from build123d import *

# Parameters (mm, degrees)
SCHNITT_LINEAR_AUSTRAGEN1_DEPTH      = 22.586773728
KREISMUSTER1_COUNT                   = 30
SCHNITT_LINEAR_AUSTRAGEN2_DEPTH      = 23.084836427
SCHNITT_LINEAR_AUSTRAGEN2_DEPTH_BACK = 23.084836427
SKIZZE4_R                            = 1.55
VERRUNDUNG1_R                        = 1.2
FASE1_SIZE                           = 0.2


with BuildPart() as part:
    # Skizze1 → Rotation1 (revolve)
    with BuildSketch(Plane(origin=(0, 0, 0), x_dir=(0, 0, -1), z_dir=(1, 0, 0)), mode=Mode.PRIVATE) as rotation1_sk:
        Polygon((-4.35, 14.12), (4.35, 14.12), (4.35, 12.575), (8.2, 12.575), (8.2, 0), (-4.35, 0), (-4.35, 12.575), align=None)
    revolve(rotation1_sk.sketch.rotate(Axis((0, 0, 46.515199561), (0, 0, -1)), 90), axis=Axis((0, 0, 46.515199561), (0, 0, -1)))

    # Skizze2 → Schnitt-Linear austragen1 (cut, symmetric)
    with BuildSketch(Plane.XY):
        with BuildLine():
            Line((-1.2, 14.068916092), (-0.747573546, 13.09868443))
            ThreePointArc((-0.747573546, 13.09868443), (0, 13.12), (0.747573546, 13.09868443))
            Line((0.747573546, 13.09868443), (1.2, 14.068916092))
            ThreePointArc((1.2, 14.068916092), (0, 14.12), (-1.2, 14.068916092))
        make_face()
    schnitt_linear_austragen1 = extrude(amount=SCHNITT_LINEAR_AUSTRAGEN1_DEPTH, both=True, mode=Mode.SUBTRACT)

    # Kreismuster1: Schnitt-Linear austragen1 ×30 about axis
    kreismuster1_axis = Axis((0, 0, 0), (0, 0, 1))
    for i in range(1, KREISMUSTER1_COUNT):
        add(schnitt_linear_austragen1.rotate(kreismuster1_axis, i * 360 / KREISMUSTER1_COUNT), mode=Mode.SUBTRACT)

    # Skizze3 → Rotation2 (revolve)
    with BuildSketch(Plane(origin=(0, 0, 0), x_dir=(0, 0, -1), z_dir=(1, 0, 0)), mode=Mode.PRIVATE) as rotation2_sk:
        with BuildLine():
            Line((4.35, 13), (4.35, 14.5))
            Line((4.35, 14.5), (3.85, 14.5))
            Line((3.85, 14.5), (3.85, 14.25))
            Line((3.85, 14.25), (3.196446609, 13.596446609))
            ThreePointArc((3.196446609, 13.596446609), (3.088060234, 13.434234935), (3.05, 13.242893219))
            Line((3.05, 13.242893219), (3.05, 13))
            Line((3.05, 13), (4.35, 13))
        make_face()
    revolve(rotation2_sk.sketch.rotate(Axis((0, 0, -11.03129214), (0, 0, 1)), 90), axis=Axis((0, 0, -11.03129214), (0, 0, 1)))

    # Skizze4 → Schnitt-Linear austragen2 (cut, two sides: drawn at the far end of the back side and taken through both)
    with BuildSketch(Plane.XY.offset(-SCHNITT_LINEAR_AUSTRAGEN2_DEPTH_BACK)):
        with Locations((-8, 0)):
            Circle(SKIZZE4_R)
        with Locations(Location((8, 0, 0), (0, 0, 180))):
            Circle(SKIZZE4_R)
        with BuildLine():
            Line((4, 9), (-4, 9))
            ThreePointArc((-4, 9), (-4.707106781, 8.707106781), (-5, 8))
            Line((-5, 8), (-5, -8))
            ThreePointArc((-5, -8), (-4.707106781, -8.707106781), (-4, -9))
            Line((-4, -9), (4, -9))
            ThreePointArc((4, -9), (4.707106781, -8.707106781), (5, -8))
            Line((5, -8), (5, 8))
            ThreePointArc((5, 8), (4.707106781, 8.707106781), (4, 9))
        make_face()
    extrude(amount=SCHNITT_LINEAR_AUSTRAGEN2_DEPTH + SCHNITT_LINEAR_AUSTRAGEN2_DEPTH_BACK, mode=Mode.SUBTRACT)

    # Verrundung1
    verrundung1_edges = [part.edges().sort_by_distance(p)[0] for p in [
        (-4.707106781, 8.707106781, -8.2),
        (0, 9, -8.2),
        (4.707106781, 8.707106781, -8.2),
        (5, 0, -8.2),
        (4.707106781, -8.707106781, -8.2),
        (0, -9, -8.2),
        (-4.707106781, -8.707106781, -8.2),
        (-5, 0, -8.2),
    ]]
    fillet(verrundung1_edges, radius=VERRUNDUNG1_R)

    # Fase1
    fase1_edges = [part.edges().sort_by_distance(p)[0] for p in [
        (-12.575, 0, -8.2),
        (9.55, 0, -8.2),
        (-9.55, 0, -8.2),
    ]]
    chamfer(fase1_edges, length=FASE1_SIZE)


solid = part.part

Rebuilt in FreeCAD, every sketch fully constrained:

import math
import FreeCAD as App
import Part
import Sketcher
from FreeCAD import Vector
Q = App.Units.Quantity


def edges_at(feature, points):
    """Names of the edges that pass closest to the given points."""
    edges = feature.Shape.Edges
    near = lambda p: min(range(len(edges)), key=lambda i: edges[i].distToShape(Part.Vertex(*p))[0])
    return sorted({f"Edge{near(p) + 1}" for p in points})


def add_polygon(sketch, points):
    """Adds a closed chain of lines whose ends are joined by coincident constraints."""
    first, n = sketch.GeometryCount, len(points)
    for a, b in zip(points, points[1:] + points[:1]):
        sketch.addGeometry(Part.LineSegment(App.Vector(*a, 0), App.Vector(*b, 0)), False)
    for i in range(n):
        sketch.addConstraint(Sketcher.Constraint("Coincident", first + i, 2, first + (i + 1) % n, 1))

doc = App.newDocument("Part")
body = doc.addObject("PartDesign::Body", "Body")

# Sketch on YZ plane
sketch1 = body.newObject("Sketcher::SketchObject", "Sketch")
sketch1.AttachmentSupport = (doc.getObject("YZ_Plane"), [""])
sketch1.MapMode = "FlatFace"
add_polygon(sketch1, [(14.1, -4.3), (14.1, 4.3), (0, 4.3), (0, -8.2), (12.6, -8.2), (12.6, -4.3)])  # lines 0-5
sketch1.addConstraint(Sketcher.Constraint("Vertical", 0))
sketch1.addConstraint(Sketcher.Constraint("Horizontal", 1))
sketch1.addConstraint(Sketcher.Constraint("Vertical", 2))
sketch1.addConstraint(Sketcher.Constraint("Horizontal", 3))
sketch1.addConstraint(Sketcher.Constraint("Vertical", 4))
sketch1.addConstraint(Sketcher.Constraint("Horizontal", 5))
sketch1.addConstraint(Sketcher.Constraint("PointOnObject", 1, 2, -2))
sketch1.addConstraint(Sketcher.Constraint("DistanceY", 0, 1, 0, 2, 8.7))
sketch1.addConstraint(Sketcher.Constraint("DistanceX", 1, 2, 1, 1, 14.12))
sketch1.addConstraint(Sketcher.Constraint("DistanceY", 2, 2, 2, 1, 12.55))
sketch1.addConstraint(Sketcher.Constraint("DistanceY", 2, 2, -1, 1, 8.2))
sketch1.addConstraint(Sketcher.Constraint("DistanceX", 3, 1, 3, 2, 12.575))
revolution = body.newObject("PartDesign::Revolution", "Revolution")
revolution.Profile = sketch1
revolution.ReferenceAxis = (sketch1, ["V_Axis"])
revolution.Angle = 360

# Sketch on XY plane
sketch2 = body.newObject("Sketcher::SketchObject", "Sketch001")
sketch2.AttachmentSupport = (doc.getObject("XY_Plane"), [""])
sketch2.MapMode = "FlatFace"
sketch2.addGeometry(Part.LineSegment(Vector(-1.2, 14.1, 0), Vector(-0.7, 13.1, 0)), False)
sketch2.addGeometry(Part.ArcOfCircle(Part.Circle(Vector(0, 0, 0), Vector(0, 0, 1), 13.1), math.radians(86.73), math.radians(93.27)), False)
sketch2.addGeometry(Part.LineSegment(Vector(0.7, 13.1, 0), Vector(1.2, 14.1, 0)), False)
sketch2.addGeometry(Part.ArcOfCircle(Part.Circle(Vector(0, 0, 0), Vector(0, 0, 1), 14.1), math.radians(85.12), math.radians(94.88)), False)
sketch2.addConstraint(Sketcher.Constraint("Coincident", 0, 2, 1, 2))
sketch2.addConstraint(Sketcher.Constraint("Coincident", 1, 1, 2, 1))
sketch2.addConstraint(Sketcher.Constraint("Coincident", 2, 2, 3, 1))
sketch2.addConstraint(Sketcher.Constraint("Coincident", 3, 2, 0, 1))
sketch2.addConstraint(Sketcher.Constraint("Coincident", 1, 3, -1, 1))
sketch2.addConstraint(Sketcher.Constraint("Coincident", 3, 3, -1, 1))
sketch2.addConstraint(Sketcher.Constraint("Horizontal", 0, 2, 1, 1))
sketch2.addConstraint(Sketcher.Constraint("Horizontal", 2, 2, 3, 2))
sketch2.addConstraint(Sketcher.Constraint("Angle", 0, Q("-65 deg")))
sketch2.addConstraint(Sketcher.Constraint("Radius", 1, 13.12))
sketch2.addConstraint(Sketcher.Constraint("Radius", 3, 14.12))
sketch2.addConstraint(Sketcher.Constraint("DistanceX", -1, 1, 2, 2, 1.2))
pocket1 = body.newObject("PartDesign::Pocket", "Pocket")
pocket1.Profile = sketch2
pocket1.Length = 45.173547
pocket1.Midplane = True
doc.recompute()

polarpattern = body.newObject("PartDesign::PolarPattern", "PolarPattern")
polarpattern.Originals = [pocket1]
polarpattern.Axis = (doc.getObject("Z_Axis"), [""])
polarpattern.Angle = 360
polarpattern.Occurrences = 30
body.Tip = polarpattern

# Sketch on YZ plane
sketch3 = body.newObject("Sketcher::SketchObject", "Sketch002")
sketch3.AttachmentSupport = (doc.getObject("YZ_Plane"), [""])
sketch3.MapMode = "FlatFace"
sketch3.addGeometry(Part.LineSegment(Vector(13, -4.35, 0), Vector(14.5, -4.35, 0)), False)
sketch3.addGeometry(Part.LineSegment(Vector(14.5, -4.35, 0), Vector(14.5, -3.85, 0)), False)
sketch3.addGeometry(Part.LineSegment(Vector(14.5, -3.85, 0), Vector(14.25, -3.85, 0)), False)
sketch3.addGeometry(Part.LineSegment(Vector(14.25, -3.85, 0), Vector(13.6, -3.2, 0)), False)
sketch3.addGeometry(Part.ArcOfCircle(Part.Circle(Vector(13.24, -3.55, 0), Vector(0, 0, 1), 0.5), math.radians(45), math.radians(90)), False)
sketch3.addGeometry(Part.LineSegment(Vector(13.24, -3.05, 0), Vector(13, -3.05, 0)), False)
sketch3.addGeometry(Part.LineSegment(Vector(13, -3.05, 0), Vector(13, -4.35, 0)), False)
sketch3.addConstraint(Sketcher.Constraint("Coincident", 0, 2, 1, 1))
sketch3.addConstraint(Sketcher.Constraint("Coincident", 1, 2, 2, 1))
sketch3.addConstraint(Sketcher.Constraint("Coincident", 2, 2, 3, 1))
sketch3.addConstraint(Sketcher.Constraint("Tangent", 3, 2, 4, 1))
sketch3.addConstraint(Sketcher.Constraint("Tangent", 4, 2, 5, 1))
sketch3.addConstraint(Sketcher.Constraint("Coincident", 5, 2, 6, 1))
sketch3.addConstraint(Sketcher.Constraint("Coincident", 6, 2, 0, 1))
sketch3.addConstraint(Sketcher.Constraint("Horizontal", 0))
sketch3.addConstraint(Sketcher.Constraint("Vertical", 1))
sketch3.addConstraint(Sketcher.Constraint("Horizontal", 2))
sketch3.addConstraint(Sketcher.Constraint("Horizontal", 5))
sketch3.addConstraint(Sketcher.Constraint("Vertical", 6))
sketch3.addConstraint(Sketcher.Constraint("Radius", 4, 0.5))
sketch3.addConstraint(Sketcher.Constraint("Angle", 3, Q("135 deg")))
sketch3.addConstraint(Sketcher.Constraint("DistanceX", 0, 1, 0, 2, 1.5))
sketch3.addConstraint(Sketcher.Constraint("DistanceY", 1, 1, 1, 2, 0.5))
sketch3.addConstraint(Sketcher.Constraint("DistanceY", 6, 2, 6, 1, 1.3))
sketch3.addConstraint(Sketcher.Constraint("DistanceX", -1, 1, 5, 2, 13.0))
sketch3.addConstraint(Sketcher.Constraint("DistanceX", 2, 2, 2, 1, 0.25))
sketch3.addConstraint(Sketcher.Constraint("DistanceY", 4, 3, -1, 1, 3.55))
revolution2 = body.newObject("PartDesign::Revolution", "Revolution001")
revolution2.Profile = sketch3
revolution2.ReferenceAxis = (sketch3, ["V_Axis"])
revolution2.Angle = 360

# Sketch on XY plane
sketch4 = body.newObject("Sketcher::SketchObject", "Sketch003")
sketch4.AttachmentSupport = (doc.getObject("XY_Plane"), [""])
sketch4.MapMode = "FlatFace"
sketch4.addGeometry(Part.Circle(Vector(-8, 0, 0), Vector(0, 0, 1), 1.6), False)
sketch4.addGeometry(Part.Circle(Vector(8, 0, 0), Vector(0, 0, 1), 1.6), False)
sketch4.addGeometry(Part.LineSegment(Vector(4, 9, 0), Vector(-4, 9, 0)), False)
sketch4.addGeometry(Part.ArcOfCircle(Part.Circle(Vector(-4, 8, 0), Vector(0, 0, 1), 1), math.radians(90), math.radians(180)), False)
sketch4.addGeometry(Part.LineSegment(Vector(-5, 8, 0), Vector(-5, -8, 0)), False)
sketch4.addGeometry(Part.ArcOfCircle(Part.Circle(Vector(-4, -8, 0), Vector(0, 0, 1), 1), math.radians(-180), math.radians(-90)), False)
sketch4.addGeometry(Part.LineSegment(Vector(-4, -9, 0), Vector(4, -9, 0)), False)
sketch4.addGeometry(Part.ArcOfCircle(Part.Circle(Vector(4, -8, 0), Vector(0, 0, 1), 1), math.radians(-90), math.radians(0)), False)
sketch4.addGeometry(Part.LineSegment(Vector(5, -8, 0), Vector(5, 8, 0)), False)
sketch4.addGeometry(Part.ArcOfCircle(Part.Circle(Vector(4, 8, 0), Vector(0, 0, 1), 1), math.radians(0), math.radians(90)), False)
sketch4.addConstraint(Sketcher.Constraint("Tangent", 2, 2, 3, 1))
sketch4.addConstraint(Sketcher.Constraint("Tangent", 3, 2, 4, 1))
sketch4.addConstraint(Sketcher.Constraint("Tangent", 4, 2, 5, 1))
sketch4.addConstraint(Sketcher.Constraint("Tangent", 5, 2, 6, 1))
sketch4.addConstraint(Sketcher.Constraint("Tangent", 6, 2, 7, 1))
sketch4.addConstraint(Sketcher.Constraint("Tangent", 7, 2, 8, 1))
sketch4.addConstraint(Sketcher.Constraint("Tangent", 8, 2, 9, 1))
sketch4.addConstraint(Sketcher.Constraint("Tangent", 9, 2, 2, 1))
sketch4.addConstraint(Sketcher.Constraint("Horizontal", 2))
sketch4.addConstraint(Sketcher.Constraint("Vertical", 4))
sketch4.addConstraint(Sketcher.Constraint("Horizontal", 6))
sketch4.addConstraint(Sketcher.Constraint("Vertical", 8))
sketch4.addConstraint(Sketcher.Constraint("Equal", 0, 1))
sketch4.addConstraint(Sketcher.Constraint("Equal", 3, 5))
sketch4.addConstraint(Sketcher.Constraint("Equal", 5, 7))
sketch4.addConstraint(Sketcher.Constraint("Equal", 7, 9))
sketch4.addConstraint(Sketcher.Constraint("Symmetric", 0, 3, 1, 3, -1, 1))
sketch4.addConstraint(Sketcher.Constraint("Symmetric", 3, 3, 7, 3, -1, 1))
sketch4.addConstraint(Sketcher.Constraint("PointOnObject", 0, 3, -1))
sketch4.addConstraint(Sketcher.Constraint("Radius", 3, 1.0))
sketch4.addConstraint(Sketcher.Constraint("Diameter", 0, 3.1))
sketch4.addConstraint(Sketcher.Constraint("DistanceX", 2, 2, 2, 1, 8.0))
sketch4.addConstraint(Sketcher.Constraint("DistanceY", 4, 2, 4, 1, 16.0))
sketch4.addConstraint(Sketcher.Constraint("DistanceX", 0, 3, -1, 1, 8.0))
pocket2 = body.newObject("PartDesign::Pocket", "Pocket001")
pocket2.Profile = sketch4
pocket2.Type = "ThroughAll"
pocket2.Midplane = True
doc.recompute()

fillet = body.newObject("PartDesign::Fillet", "Fillet")
fillet.Base = (pocket2, edges_at(pocket2, [
    (-4.707, 8.707, -8.2),
    (0, 9, -8.2),
    (4.707, 8.707, -8.2),
    (5, 0, -8.2),
    (4.707, -8.707, -8.2),
    (0, -9, -8.2),
    (-4.707, -8.707, -8.2),
    (-5, 0, -8.2),
]))
fillet.Radius = 1.2
doc.recompute()

chamfer = body.newObject("PartDesign::Chamfer", "Chamfer")
chamfer.Base = (fillet, edges_at(fillet, [(-12.575, 0, -8.2), (9.55, 0, -8.2), (-9.55, 0, -8.2)]))
chamfer.Size = 0.2

doc.recompute()
